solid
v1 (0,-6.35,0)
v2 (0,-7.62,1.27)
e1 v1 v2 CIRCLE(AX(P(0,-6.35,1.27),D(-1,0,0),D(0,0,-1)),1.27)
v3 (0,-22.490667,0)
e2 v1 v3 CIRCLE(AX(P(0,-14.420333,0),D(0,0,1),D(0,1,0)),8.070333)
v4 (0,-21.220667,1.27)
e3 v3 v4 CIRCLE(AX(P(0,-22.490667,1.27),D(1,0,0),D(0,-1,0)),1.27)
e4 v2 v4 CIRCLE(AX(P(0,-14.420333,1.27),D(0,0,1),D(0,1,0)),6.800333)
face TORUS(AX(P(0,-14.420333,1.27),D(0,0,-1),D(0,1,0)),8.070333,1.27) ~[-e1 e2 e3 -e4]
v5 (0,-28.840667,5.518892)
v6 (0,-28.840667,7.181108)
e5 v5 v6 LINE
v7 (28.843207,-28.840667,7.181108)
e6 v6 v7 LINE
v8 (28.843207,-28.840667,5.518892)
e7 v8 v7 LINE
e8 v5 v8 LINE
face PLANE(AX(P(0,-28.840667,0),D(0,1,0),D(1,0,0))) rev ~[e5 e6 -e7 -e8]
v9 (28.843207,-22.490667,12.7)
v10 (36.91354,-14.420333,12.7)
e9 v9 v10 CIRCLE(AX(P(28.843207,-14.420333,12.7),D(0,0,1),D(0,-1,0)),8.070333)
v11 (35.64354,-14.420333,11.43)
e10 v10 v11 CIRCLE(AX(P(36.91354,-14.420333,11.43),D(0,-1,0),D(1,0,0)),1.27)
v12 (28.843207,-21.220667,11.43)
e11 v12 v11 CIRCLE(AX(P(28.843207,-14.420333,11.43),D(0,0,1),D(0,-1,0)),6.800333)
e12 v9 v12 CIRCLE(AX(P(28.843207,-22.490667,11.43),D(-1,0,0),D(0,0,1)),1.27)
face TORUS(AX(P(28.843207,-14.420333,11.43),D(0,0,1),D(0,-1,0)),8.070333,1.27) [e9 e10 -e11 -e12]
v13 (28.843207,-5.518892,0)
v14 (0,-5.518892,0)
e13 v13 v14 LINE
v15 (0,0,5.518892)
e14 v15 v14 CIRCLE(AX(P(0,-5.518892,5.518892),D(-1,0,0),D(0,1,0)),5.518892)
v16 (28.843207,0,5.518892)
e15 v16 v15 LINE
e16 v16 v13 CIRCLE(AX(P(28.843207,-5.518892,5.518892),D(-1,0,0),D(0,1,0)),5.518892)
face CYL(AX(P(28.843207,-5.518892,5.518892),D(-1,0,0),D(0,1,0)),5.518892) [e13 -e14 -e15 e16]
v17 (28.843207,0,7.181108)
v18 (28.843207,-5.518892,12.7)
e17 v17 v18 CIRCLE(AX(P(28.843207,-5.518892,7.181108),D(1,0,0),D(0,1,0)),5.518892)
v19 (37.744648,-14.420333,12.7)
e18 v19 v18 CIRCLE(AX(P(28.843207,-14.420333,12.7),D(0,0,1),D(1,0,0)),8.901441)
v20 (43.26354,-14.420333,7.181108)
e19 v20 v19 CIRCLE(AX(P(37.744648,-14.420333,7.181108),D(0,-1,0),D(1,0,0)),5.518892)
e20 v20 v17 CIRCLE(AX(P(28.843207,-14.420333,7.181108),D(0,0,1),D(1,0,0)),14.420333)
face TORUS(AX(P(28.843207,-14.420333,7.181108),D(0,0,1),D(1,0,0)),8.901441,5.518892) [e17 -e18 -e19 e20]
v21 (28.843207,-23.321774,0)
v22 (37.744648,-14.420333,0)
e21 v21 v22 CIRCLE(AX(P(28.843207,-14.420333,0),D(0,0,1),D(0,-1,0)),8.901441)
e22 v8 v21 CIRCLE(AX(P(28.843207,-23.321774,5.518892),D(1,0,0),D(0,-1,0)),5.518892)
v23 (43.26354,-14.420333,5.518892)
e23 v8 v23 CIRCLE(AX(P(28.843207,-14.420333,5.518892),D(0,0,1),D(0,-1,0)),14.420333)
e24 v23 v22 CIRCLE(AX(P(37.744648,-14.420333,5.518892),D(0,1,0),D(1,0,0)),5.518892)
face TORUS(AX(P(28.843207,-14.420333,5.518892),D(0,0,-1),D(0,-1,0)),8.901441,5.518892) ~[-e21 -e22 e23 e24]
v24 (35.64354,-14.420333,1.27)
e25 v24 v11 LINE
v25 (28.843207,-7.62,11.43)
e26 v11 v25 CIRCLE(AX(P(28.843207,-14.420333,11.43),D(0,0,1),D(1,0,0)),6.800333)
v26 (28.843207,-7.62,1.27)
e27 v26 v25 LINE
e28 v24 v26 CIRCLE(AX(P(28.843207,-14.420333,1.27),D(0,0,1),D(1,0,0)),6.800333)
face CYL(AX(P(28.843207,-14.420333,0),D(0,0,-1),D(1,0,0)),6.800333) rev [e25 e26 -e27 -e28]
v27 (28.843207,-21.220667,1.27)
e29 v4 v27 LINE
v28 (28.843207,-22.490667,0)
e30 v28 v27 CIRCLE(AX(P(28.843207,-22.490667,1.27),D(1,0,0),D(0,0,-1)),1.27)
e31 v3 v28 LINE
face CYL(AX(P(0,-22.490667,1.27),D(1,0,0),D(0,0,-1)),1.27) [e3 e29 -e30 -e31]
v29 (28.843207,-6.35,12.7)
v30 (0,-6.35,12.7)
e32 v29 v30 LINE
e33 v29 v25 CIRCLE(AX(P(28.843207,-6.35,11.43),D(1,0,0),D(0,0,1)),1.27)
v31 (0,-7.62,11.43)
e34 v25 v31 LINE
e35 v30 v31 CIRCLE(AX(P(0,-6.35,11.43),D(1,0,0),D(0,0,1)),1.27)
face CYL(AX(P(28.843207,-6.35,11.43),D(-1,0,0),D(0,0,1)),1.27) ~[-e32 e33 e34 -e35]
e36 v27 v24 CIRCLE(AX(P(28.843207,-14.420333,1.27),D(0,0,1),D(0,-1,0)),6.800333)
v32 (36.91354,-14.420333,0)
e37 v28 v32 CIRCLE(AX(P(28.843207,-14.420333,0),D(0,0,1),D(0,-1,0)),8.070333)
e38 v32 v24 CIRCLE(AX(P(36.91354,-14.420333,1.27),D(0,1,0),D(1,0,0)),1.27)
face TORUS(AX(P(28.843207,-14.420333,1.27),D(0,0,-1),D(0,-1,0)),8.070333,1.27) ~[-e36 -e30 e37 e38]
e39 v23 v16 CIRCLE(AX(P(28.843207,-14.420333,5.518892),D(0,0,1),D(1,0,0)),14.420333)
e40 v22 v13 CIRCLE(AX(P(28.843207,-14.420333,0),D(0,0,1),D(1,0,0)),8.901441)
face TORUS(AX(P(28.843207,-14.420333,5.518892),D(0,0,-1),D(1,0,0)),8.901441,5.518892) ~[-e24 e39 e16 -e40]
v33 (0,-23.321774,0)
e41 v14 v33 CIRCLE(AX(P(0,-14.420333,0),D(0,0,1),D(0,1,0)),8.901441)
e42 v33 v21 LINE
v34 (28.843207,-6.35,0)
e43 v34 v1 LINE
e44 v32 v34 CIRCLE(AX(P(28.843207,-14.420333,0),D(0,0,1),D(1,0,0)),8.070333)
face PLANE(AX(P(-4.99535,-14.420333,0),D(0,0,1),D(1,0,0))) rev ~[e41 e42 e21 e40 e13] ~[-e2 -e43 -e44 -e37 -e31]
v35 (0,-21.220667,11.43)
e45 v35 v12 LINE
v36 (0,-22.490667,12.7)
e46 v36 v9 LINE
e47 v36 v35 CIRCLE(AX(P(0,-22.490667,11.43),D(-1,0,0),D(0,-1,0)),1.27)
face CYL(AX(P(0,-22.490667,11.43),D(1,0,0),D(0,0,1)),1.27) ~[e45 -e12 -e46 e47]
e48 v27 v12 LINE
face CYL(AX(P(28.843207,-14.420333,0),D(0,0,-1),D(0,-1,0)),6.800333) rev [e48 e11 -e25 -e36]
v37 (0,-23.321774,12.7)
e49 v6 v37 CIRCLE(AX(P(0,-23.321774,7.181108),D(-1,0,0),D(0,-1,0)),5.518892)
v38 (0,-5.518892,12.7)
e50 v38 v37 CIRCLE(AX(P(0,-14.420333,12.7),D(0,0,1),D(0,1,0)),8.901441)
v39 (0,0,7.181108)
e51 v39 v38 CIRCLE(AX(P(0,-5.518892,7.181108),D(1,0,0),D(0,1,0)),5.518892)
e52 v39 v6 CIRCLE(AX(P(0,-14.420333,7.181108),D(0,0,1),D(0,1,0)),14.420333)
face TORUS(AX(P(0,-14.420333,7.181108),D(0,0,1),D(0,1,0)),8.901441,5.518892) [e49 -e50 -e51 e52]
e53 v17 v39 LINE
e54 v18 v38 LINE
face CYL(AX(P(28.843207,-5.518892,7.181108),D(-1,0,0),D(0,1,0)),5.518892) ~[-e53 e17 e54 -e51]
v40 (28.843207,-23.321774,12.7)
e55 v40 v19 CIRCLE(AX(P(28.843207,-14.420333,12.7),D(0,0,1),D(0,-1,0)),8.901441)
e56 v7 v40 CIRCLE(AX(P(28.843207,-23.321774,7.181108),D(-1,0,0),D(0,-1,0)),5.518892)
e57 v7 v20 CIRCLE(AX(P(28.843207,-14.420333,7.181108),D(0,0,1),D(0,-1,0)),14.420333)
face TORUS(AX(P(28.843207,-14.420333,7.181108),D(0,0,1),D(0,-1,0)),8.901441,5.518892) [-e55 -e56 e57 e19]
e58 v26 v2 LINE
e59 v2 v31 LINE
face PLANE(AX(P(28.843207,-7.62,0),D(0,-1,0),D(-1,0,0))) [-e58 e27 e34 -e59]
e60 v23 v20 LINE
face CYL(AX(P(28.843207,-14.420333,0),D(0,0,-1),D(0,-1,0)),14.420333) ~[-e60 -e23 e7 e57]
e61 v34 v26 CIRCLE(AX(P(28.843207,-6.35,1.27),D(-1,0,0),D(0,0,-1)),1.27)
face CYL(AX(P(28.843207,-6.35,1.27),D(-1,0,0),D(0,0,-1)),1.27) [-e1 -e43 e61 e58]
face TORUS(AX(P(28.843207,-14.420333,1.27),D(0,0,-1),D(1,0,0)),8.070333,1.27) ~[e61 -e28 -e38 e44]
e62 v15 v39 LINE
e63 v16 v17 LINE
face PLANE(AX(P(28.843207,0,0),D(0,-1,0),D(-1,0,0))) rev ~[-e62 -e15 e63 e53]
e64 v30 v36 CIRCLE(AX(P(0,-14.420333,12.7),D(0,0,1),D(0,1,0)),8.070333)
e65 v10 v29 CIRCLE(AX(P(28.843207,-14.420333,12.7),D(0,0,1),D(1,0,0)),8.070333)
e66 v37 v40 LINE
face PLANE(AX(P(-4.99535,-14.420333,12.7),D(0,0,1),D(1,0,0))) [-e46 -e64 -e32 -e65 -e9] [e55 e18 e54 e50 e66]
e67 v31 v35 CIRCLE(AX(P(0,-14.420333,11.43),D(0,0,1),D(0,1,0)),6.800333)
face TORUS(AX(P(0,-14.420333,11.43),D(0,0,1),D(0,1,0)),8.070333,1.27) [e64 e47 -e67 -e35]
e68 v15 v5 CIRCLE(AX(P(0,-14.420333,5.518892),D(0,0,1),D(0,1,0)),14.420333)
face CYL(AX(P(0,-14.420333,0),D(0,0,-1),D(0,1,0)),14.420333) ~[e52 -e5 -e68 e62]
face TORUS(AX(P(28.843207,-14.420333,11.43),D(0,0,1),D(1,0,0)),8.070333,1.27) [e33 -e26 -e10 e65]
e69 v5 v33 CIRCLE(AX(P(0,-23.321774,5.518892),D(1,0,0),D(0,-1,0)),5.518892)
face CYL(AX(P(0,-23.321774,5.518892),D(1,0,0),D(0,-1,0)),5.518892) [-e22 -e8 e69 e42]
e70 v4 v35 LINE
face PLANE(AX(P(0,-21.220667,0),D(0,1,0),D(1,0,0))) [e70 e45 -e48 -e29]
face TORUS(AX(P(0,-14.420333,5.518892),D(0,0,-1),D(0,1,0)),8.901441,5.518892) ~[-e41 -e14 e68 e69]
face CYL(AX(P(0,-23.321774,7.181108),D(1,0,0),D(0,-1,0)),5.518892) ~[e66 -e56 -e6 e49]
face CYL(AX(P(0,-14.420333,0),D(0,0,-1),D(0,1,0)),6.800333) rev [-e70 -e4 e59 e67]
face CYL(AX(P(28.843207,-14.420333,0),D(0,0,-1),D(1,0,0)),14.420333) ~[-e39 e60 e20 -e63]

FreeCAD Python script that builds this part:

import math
import FreeCAD as App
import Part
import Sketcher
from FreeCAD import Vector
Q = App.Units.Quantity


def edges_at(feature, points):
    """Names of the edges that pass closest to the given points."""
    edges = feature.Shape.Edges
    near = lambda p: min(range(len(edges)), key=lambda i: edges[i].distToShape(Part.Vertex(*p))[0])
    return sorted({f"Edge{near(p) + 1}" for p in points})


def faces_at(feature, points):
    """Names of the faces that lie closest to the given points."""
    faces = feature.Shape.Faces
    near = lambda p: min(range(len(faces)), key=lambda i: faces[i].distToShape(Part.Vertex(*p))[0])
    return sorted({f"Face{near(p) + 1}" for p in points})

doc = App.newDocument("Part")
body = doc.addObject("PartDesign::Body", "Body")

sketch1 = body.newObject("Sketcher::SketchObject", "Sketch")
sketch1.AttachmentSupport = (doc.getObject("XY_Plane"), [""])
sketch1.MapMode = "FlatFace"
sketch1.addGeometry([
    Part.ArcOfCircle(Part.Circle(Vector(0, -14, 0), Vector(0, 0, 1), 14), math.radians(90), math.radians(270)),
    Part.LineSegment(Vector(0, -29, 0), Vector(29, -29, 0)),
    Part.ArcOfCircle(Part.Circle(Vector(29, -14, 0), Vector(0, 0, 1), 14), math.radians(-90), math.radians(0)),
    Part.ArcOfCircle(Part.Circle(Vector(29, -14, 0), Vector(0, 0, 1), 14), math.radians(0), math.radians(90)),
    Part.LineSegment(Vector(29, 0, 0), Vector(0, 0, 0)),
], False)
sketch1.addConstraint([
    Sketcher.Constraint("Tangent", 0, 2, 1, 1),
    Sketcher.Constraint("Tangent", 1, 2, 2, 1),
    Sketcher.Constraint("Tangent", 2, 2, 3, 1),
    Sketcher.Constraint("Tangent", 3, 2, 4, 1),
    Sketcher.Constraint("Tangent", 4, 2, 0, 1),
    Sketcher.Constraint("Horizontal", 1),
    Sketcher.Constraint("Horizontal", 4),
    Sketcher.Constraint("Coincident", 4, 2, -1, 1),
    Sketcher.Constraint("Equal", 0, 2),
    Sketcher.Constraint("Horizontal", 3, 3, 2, 2),
    Sketcher.Constraint("Radius", 0, 14.420333),
    Sketcher.Constraint("DistanceX", 1, 1, 1, 2, 28.843207),
])
pad1 = body.newObject("PartDesign::Pad", "Pad")
pad1.Profile = sketch1
pad1.Length = Q("0.5 in")
doc.recompute()

thickness = body.newObject("PartDesign::Thickness", "Thickness")
thickness.Base = (pad1, faces_at(pad1, [(14.422, -14.42, 12.7), (14.422, -14.42, 0)]))
thickness.Value = Q("0.3 in")
thickness.Reversed = True
thickness.Join = "Arc"
doc.recompute()

fillet = body.newObject("PartDesign::Fillet", "Fillet")
fillet.Base = (thickness, edges_at(thickness, [(14.422, -28.841, 12.7), (14.422, -28.841, 0)]))
fillet.Radius = 5.518892
doc.recompute()

fillet2 = body.newObject("PartDesign::Fillet", "Fillet001")
fillet2.Base = (fillet, edges_at(fillet, [(14.422, -7.62, 0), (14.422, -7.62, 12.7)]))
fillet2.Radius = Q("0.05 in")

doc.recompute()
